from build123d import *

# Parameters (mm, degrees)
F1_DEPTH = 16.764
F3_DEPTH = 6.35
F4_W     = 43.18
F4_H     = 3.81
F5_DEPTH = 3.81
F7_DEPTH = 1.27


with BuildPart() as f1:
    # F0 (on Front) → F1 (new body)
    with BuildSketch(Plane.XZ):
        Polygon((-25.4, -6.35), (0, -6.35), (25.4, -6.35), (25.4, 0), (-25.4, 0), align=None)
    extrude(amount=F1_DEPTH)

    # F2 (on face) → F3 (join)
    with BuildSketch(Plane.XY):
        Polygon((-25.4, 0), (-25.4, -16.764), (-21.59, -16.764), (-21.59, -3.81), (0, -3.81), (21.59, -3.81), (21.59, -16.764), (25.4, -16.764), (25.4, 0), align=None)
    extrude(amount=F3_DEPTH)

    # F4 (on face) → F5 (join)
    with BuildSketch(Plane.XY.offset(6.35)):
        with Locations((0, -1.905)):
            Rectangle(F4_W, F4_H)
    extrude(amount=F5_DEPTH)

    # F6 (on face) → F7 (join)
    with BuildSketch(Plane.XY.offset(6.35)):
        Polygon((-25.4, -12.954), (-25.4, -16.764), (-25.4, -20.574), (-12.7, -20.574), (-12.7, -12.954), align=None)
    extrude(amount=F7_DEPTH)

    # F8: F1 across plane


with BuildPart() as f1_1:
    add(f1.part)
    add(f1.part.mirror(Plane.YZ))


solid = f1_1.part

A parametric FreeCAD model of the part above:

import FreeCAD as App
import Part
import Sketcher

V = App.Vector
Q = App.Units.Quantity

doc = App.newDocument("Part")
body = doc.addObject("PartDesign::Body", "Body")

# Sketch on XZ plane
sketch1 = body.newObject("Sketcher::SketchObject", "Sketch")
sketch1.AttachmentSupport = (doc.getObject("XZ_Plane"), [""])
sketch1.MapMode = "FlatFace"
sketch1.addGeometry([
    Part.LineSegment(V(-25, -6, 0), V(25, -6, 0)),
    Part.LineSegment(V(25, -6, 0), V(25, 0, 0)),
    Part.LineSegment(V(25, 0, 0), V(-25, 0, 0)),
    Part.LineSegment(V(-25, 0, 0), V(-25, -6, 0)),
], False)
sketch1.addConstraint([
    Sketcher.Constraint("Coincident", 0, 2, 1, 1),
    Sketcher.Constraint("Coincident", 1, 2, 2, 1),
    Sketcher.Constraint("Coincident", 2, 2, 3, 1),
    Sketcher.Constraint("Coincident", 3, 2, 0, 1),
    Sketcher.Constraint("Horizontal", 0),
    Sketcher.Constraint("Vertical", 1),
    Sketcher.Constraint("Horizontal", 2),
    Sketcher.Constraint("Vertical", 3),
    Sketcher.Constraint("Symmetric", 1, 2, 2, 2, -1, 1),
    Sketcher.Constraint("DistanceX", 0, 1, 0, 2, Q("2 in")),
    Sketcher.Constraint("DistanceY", 1, 1, 1, 2, Q("0.25 in")),
])
pad1 = body.newObject("PartDesign::Pad", "Pad")
pad1.Profile = sketch1
pad1.Length = Q("0.66 in")

# Sketch on XY plane
sketch2 = body.newObject("Sketcher::SketchObject", "Sketch001")
sketch2.AttachmentSupport = (doc.getObject("XY_Plane"), [""])
sketch2.MapMode = "FlatFace"
sketch2.addGeometry([
    Part.LineSegment(V(-25.4, 0, 0), V(-25.4, -16.8, 0)),  # 0
    Part.LineSegment(V(-25.4, -16.8, 0), V(-21.6, -16.8, 0)),  # 1
    Part.LineSegment(V(-21.6, -16.8, 0), V(-21.6, -3.8, 0)),  # 2
    Part.LineSegment(V(-21.6, -3.8, 0), V(21.6, -3.8, 0)),  # 3
    Part.LineSegment(V(21.6, -3.8, 0), V(21.6, -16.8, 0)),  # 4
    Part.LineSegment(V(21.6, -16.8, 0), V(25.4, -16.8, 0)),  # 5
    Part.LineSegment(V(25.4, -16.8, 0), V(25.4, 0, 0)),  # 6
    Part.LineSegment(V(25.4, 0, 0), V(-25.4, 0, 0)),  # 7
], False)
sketch2.addConstraint([
    Sketcher.Constraint("Coincident", 0, 2, 1, 1),
    Sketcher.Constraint("Coincident", 1, 2, 2, 1),
    Sketcher.Constraint("Coincident", 2, 2, 3, 1),
    Sketcher.Constraint("Coincident", 3, 2, 4, 1),
    Sketcher.Constraint("Coincident", 4, 2, 5, 1),
    Sketcher.Constraint("Coincident", 5, 2, 6, 1),
    Sketcher.Constraint("Coincident", 6, 2, 7, 1),
    Sketcher.Constraint("Coincident", 7, 2, 0, 1),
    Sketcher.Constraint("Vertical", 0),
    Sketcher.Constraint("Horizontal", 1),
    Sketcher.Constraint("Vertical", 2),
    Sketcher.Constraint("Horizontal", 3),
    Sketcher.Constraint("Vertical", 4),
    Sketcher.Constraint("Horizontal", 5),
    Sketcher.Constraint("Vertical", 6),
    Sketcher.Constraint("Horizontal", 7),
    Sketcher.Constraint("Symmetric", 6, 2, 7, 2, -1, 1),
    Sketcher.Constraint("Symmetric", 1, 2, 4, 2, -2),
    Sketcher.Constraint("DistanceX", 7, 2, 7, 1, Q("2 in")),
    Sketcher.Constraint("DistanceX", 3, 1, 3, 2, Q("1.7 in")),
    Sketcher.Constraint("DistanceY", 0, 2, 0, 1, Q("0.66 in")),
    Sketcher.Constraint("DistanceY", 2, 1, 2, 2, Q("0.51 in")),
])
pad2 = body.newObject("PartDesign::Pad", "Pad001")
pad2.Profile = sketch2
pad2.Length = Q("0.25 in")

# Sketch on XY plane
sketch3 = body.newObject("Sketcher::SketchObject", "Sketch002")
sketch3.AttachmentSupport = (doc.getObject("XY_Plane"), [""])
sketch3.MapMode = "FlatFace"
sketch3.AttachmentOffset = App.Placement(V(0, 0, 0.25 * 25.4), App.Rotation())
sketch3.addGeometry([
    Part.LineSegment(V(-21.6, 0, 0), V(-21.6, -3.8, 0)),
    Part.LineSegment(V(-21.6, -3.8, 0), V(21.6, -3.8, 0)),
    Part.LineSegment(V(21.6, -3.8, 0), V(21.6, 0, 0)),
    Part.LineSegment(V(21.6, 0, 0), V(-21.6, 0, 0)),
], False)
sketch3.addConstraint([
    Sketcher.Constraint("Coincident", 0, 2, 1, 1),
    Sketcher.Constraint("Coincident", 1, 2, 2, 1),
    Sketcher.Constraint("Coincident", 2, 2, 3, 1),
    Sketcher.Constraint("Coincident", 3, 2, 0, 1),
    Sketcher.Constraint("Vertical", 0),
    Sketcher.Constraint("Horizontal", 1),
    Sketcher.Constraint("Vertical", 2),
    Sketcher.Constraint("Horizontal", 3),
    Sketcher.Constraint("Symmetric", 2, 2, 3, 2, -1, 1),
    Sketcher.Constraint("DistanceX", 1, 1, 1, 2, Q("1.7 in")),
    Sketcher.Constraint("DistanceY", 0, 2, 0, 1, Q("0.15 in")),
])
pad3 = body.newObject("PartDesign::Pad", "Pad002")
pad3.Profile = sketch3
pad3.Length = Q("0.15 in")

# Sketch on XY plane
sketch4 = body.newObject("Sketcher::SketchObject", "Sketch003")
sketch4.AttachmentSupport = (doc.getObject("XY_Plane"), [""])
sketch4.MapMode = "FlatFace"
sketch4.AttachmentOffset = App.Placement(V(0, 0, 0.25 * 25.4), App.Rotation())
sketch4.addGeometry([
    Part.LineSegment(V(-25, -13, 0), V(-25, -21, 0)),
    Part.LineSegment(V(-25, -21, 0), V(-13, -21, 0)),
    Part.LineSegment(V(-13, -21, 0), V(-13, -13, 0)),
    Part.LineSegment(V(-13, -13, 0), V(-25, -13, 0)),
], False)
sketch4.addConstraint([
    Sketcher.Constraint("Coincident", 0, 2, 1, 1),
    Sketcher.Constraint("Coincident", 1, 2, 2, 1),
    Sketcher.Constraint("Coincident", 2, 2, 3, 1),
    Sketcher.Constraint("Coincident", 3, 2, 0, 1),
    Sketcher.Constraint("Vertical", 0),
    Sketcher.Constraint("Horizontal", 1),
    Sketcher.Constraint("Vertical", 2),
    Sketcher.Constraint("Horizontal", 3),
    Sketcher.Constraint("DistanceX", 1, 1, 1, 2, Q("0.5 in")),
    Sketcher.Constraint("DistanceY", 0, 2, 0, 1, Q("0.3 in")),
    Sketcher.Constraint("DistanceX", 0, 2, -1, 1, Q("1 in")),
    Sketcher.Constraint("DistanceY", 0, 2, -1, 1, Q("0.81 in")),
])
pad4 = body.newObject("PartDesign::Pad", "Pad003")
pad4.Profile = sketch4
pad4.Length = Q("0.05 in")
body2 = doc.addObject("PartDesign::Body", "Body001")
doc.recompute()

body2.BaseFeature = body
doc.recompute()

mirroring = doc.addObject("Part::Mirroring", "Mirroring")
mirroring.Source = body
mirroring.Base = V(0, 0, 0)
mirroring.Normal = V(1, 0, 0)
body3 = doc.addObject("PartDesign::Body", "Body002")
body3.BaseFeature = mirroring
boolean = body2.newObject("PartDesign::Boolean", "Boolean")
boolean.Type = "Fuse"
boolean.addObjects([body3])
doc.recompute()
mirroring.Visibility = False

doc.recompute()
